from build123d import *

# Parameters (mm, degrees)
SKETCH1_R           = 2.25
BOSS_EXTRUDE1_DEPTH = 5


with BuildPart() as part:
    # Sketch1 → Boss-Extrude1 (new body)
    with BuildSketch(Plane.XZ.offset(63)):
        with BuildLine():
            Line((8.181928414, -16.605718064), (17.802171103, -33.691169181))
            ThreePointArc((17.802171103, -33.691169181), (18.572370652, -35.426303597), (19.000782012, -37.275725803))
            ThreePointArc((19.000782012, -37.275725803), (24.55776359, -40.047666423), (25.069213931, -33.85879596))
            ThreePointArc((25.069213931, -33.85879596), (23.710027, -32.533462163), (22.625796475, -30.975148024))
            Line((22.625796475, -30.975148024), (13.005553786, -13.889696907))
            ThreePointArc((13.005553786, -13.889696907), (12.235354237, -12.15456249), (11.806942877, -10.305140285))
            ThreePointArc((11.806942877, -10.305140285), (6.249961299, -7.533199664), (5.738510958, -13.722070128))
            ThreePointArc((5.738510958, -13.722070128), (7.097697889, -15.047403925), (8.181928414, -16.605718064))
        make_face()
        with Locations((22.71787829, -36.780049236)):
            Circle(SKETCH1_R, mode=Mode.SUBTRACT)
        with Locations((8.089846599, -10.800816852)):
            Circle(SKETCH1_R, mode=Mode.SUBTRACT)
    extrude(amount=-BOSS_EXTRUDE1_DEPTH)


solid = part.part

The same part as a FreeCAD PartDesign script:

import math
import FreeCAD as App
import Part
import Sketcher

V = App.Vector

doc = App.newDocument("Part")
body = doc.addObject("PartDesign::Body", "Body")

# Sketch on XZ plane
sketch1 = body.newObject("Sketcher::SketchObject", "Sketch")
sketch1.AttachmentSupport = (doc.getObject("XZ_Plane"), [""])
sketch1.MapMode = "FlatFace"
sketch1.AttachmentOffset = App.Placement(V(0, 0, 63), App.Rotation())
sketch1.addGeometry(Part.LineSegment(V(8.2, -16.6, 0), V(17.8, -33.7, 0)), False)
sketch1.addGeometry(Part.ArcOfCircle(Part.Circle(V(9.1, -38.6, 0), V(0, 0, 1), 10), math.radians(8), math.radians(29)), False)
sketch1.addGeometry(Part.ArcOfCircle(Part.Circle(V(22.7, -36.8, 0), V(0, 0, 1), 3.8), math.radians(-172), math.radians(51)), False)
sketch1.addGeometry(Part.ArcOfCircle(Part.Circle(V(31.3, -26.1, 0), V(0, 0, 1), 10), math.radians(-151), math.radians(-129)), False)
sketch1.addGeometry(Part.LineSegment(V(22.6, -31, 0), V(13, -13.9, 0)), False)
sketch1.addGeometry(Part.ArcOfCircle(Part.Circle(V(21.7, -9, 0), V(0, 0, 1), 10), math.radians(-172), math.radians(-151)), False)
sketch1.addGeometry(Part.ArcOfCircle(Part.Circle(V(8.1, -10.8, 0), V(0, 0, 1), 3.8), math.radians(8), math.radians(231)), False)
sketch1.addGeometry(Part.ArcOfCircle(Part.Circle(V(-0.5, -21.5, 0), V(0, 0, 1), 10), math.radians(29), math.radians(51)), False)
sketch1.addGeometry(Part.Circle(V(22.7, -36.8, 0), V(0, 0, 1), 2.2), False)
sketch1.addGeometry(Part.Circle(V(8.1, -10.8, 0), V(0, 0, 1), 2.2), False)
sketch1.addConstraint(Sketcher.Constraint("Tangent", 0, 2, 1, 2))
sketch1.addConstraint(Sketcher.Constraint("Tangent", 1, 1, 2, 1))
sketch1.addConstraint(Sketcher.Constraint("Tangent", 2, 2, 3, 2))
sketch1.addConstraint(Sketcher.Constraint("Tangent", 3, 1, 4, 1))
sketch1.addConstraint(Sketcher.Constraint("Tangent", 4, 2, 5, 2))
sketch1.addConstraint(Sketcher.Constraint("Tangent", 5, 1, 6, 1))
sketch1.addConstraint(Sketcher.Constraint("Tangent", 6, 2, 7, 2))
sketch1.addConstraint(Sketcher.Constraint("Tangent", 7, 1, 0, 1))
sketch1.addConstraint(Sketcher.Constraint("Coincident", 8, 3, 2, 3))
sketch1.addConstraint(Sketcher.Constraint("Coincident", 9, 3, 6, 3))
sketch1.addConstraint(Sketcher.Constraint("Equal", 1, 3))
sketch1.addConstraint(Sketcher.Constraint("Equal", 3, 5))
sketch1.addConstraint(Sketcher.Constraint("Equal", 2, 6))
sketch1.addConstraint(Sketcher.Constraint("Equal", 5, 7))
sketch1.addConstraint(Sketcher.Constraint("Equal", 8, 9))
sketch1.addConstraint(Sketcher.Constraint("Parallel", 0, 4))
sketch1.addConstraint(Sketcher.Constraint("Equal", 0, 4))
sketch1.addConstraint(Sketcher.Constraint("Radius", 1, 10.0))
sketch1.addConstraint(Sketcher.Constraint("Diameter", 8, 4.5))
sketch1.addConstraint(Sketcher.Constraint("Radius", 2, 3.75))
sketch1.addConstraint(Sketcher.Constraint("DistanceX", -1, 1, 5, 3, 21.7192))
sketch1.addConstraint(Sketcher.Constraint("DistanceY", 2, 3, 3, 1, 5.804901))
sketch1.addConstraint(Sketcher.Constraint("DistanceY", 1, 3, -1, 1, 38.59753))
sketch1.addConstraint(Sketcher.Constraint("DistanceX", -1, 1, 2, 3, 22.717878))
sketch1.addConstraint(Sketcher.Constraint("DistanceY", 2, 3, -1, 1, 36.780049))
sketch1.addConstraint(Sketcher.Constraint("DistanceY", 7, 3, -1, 1, 21.512079))
pad1 = body.newObject("PartDesign::Pad", "Pad")
pad1.Profile = sketch1
pad1.Length = 5
pad1.Reversed = True

doc.recompute()
